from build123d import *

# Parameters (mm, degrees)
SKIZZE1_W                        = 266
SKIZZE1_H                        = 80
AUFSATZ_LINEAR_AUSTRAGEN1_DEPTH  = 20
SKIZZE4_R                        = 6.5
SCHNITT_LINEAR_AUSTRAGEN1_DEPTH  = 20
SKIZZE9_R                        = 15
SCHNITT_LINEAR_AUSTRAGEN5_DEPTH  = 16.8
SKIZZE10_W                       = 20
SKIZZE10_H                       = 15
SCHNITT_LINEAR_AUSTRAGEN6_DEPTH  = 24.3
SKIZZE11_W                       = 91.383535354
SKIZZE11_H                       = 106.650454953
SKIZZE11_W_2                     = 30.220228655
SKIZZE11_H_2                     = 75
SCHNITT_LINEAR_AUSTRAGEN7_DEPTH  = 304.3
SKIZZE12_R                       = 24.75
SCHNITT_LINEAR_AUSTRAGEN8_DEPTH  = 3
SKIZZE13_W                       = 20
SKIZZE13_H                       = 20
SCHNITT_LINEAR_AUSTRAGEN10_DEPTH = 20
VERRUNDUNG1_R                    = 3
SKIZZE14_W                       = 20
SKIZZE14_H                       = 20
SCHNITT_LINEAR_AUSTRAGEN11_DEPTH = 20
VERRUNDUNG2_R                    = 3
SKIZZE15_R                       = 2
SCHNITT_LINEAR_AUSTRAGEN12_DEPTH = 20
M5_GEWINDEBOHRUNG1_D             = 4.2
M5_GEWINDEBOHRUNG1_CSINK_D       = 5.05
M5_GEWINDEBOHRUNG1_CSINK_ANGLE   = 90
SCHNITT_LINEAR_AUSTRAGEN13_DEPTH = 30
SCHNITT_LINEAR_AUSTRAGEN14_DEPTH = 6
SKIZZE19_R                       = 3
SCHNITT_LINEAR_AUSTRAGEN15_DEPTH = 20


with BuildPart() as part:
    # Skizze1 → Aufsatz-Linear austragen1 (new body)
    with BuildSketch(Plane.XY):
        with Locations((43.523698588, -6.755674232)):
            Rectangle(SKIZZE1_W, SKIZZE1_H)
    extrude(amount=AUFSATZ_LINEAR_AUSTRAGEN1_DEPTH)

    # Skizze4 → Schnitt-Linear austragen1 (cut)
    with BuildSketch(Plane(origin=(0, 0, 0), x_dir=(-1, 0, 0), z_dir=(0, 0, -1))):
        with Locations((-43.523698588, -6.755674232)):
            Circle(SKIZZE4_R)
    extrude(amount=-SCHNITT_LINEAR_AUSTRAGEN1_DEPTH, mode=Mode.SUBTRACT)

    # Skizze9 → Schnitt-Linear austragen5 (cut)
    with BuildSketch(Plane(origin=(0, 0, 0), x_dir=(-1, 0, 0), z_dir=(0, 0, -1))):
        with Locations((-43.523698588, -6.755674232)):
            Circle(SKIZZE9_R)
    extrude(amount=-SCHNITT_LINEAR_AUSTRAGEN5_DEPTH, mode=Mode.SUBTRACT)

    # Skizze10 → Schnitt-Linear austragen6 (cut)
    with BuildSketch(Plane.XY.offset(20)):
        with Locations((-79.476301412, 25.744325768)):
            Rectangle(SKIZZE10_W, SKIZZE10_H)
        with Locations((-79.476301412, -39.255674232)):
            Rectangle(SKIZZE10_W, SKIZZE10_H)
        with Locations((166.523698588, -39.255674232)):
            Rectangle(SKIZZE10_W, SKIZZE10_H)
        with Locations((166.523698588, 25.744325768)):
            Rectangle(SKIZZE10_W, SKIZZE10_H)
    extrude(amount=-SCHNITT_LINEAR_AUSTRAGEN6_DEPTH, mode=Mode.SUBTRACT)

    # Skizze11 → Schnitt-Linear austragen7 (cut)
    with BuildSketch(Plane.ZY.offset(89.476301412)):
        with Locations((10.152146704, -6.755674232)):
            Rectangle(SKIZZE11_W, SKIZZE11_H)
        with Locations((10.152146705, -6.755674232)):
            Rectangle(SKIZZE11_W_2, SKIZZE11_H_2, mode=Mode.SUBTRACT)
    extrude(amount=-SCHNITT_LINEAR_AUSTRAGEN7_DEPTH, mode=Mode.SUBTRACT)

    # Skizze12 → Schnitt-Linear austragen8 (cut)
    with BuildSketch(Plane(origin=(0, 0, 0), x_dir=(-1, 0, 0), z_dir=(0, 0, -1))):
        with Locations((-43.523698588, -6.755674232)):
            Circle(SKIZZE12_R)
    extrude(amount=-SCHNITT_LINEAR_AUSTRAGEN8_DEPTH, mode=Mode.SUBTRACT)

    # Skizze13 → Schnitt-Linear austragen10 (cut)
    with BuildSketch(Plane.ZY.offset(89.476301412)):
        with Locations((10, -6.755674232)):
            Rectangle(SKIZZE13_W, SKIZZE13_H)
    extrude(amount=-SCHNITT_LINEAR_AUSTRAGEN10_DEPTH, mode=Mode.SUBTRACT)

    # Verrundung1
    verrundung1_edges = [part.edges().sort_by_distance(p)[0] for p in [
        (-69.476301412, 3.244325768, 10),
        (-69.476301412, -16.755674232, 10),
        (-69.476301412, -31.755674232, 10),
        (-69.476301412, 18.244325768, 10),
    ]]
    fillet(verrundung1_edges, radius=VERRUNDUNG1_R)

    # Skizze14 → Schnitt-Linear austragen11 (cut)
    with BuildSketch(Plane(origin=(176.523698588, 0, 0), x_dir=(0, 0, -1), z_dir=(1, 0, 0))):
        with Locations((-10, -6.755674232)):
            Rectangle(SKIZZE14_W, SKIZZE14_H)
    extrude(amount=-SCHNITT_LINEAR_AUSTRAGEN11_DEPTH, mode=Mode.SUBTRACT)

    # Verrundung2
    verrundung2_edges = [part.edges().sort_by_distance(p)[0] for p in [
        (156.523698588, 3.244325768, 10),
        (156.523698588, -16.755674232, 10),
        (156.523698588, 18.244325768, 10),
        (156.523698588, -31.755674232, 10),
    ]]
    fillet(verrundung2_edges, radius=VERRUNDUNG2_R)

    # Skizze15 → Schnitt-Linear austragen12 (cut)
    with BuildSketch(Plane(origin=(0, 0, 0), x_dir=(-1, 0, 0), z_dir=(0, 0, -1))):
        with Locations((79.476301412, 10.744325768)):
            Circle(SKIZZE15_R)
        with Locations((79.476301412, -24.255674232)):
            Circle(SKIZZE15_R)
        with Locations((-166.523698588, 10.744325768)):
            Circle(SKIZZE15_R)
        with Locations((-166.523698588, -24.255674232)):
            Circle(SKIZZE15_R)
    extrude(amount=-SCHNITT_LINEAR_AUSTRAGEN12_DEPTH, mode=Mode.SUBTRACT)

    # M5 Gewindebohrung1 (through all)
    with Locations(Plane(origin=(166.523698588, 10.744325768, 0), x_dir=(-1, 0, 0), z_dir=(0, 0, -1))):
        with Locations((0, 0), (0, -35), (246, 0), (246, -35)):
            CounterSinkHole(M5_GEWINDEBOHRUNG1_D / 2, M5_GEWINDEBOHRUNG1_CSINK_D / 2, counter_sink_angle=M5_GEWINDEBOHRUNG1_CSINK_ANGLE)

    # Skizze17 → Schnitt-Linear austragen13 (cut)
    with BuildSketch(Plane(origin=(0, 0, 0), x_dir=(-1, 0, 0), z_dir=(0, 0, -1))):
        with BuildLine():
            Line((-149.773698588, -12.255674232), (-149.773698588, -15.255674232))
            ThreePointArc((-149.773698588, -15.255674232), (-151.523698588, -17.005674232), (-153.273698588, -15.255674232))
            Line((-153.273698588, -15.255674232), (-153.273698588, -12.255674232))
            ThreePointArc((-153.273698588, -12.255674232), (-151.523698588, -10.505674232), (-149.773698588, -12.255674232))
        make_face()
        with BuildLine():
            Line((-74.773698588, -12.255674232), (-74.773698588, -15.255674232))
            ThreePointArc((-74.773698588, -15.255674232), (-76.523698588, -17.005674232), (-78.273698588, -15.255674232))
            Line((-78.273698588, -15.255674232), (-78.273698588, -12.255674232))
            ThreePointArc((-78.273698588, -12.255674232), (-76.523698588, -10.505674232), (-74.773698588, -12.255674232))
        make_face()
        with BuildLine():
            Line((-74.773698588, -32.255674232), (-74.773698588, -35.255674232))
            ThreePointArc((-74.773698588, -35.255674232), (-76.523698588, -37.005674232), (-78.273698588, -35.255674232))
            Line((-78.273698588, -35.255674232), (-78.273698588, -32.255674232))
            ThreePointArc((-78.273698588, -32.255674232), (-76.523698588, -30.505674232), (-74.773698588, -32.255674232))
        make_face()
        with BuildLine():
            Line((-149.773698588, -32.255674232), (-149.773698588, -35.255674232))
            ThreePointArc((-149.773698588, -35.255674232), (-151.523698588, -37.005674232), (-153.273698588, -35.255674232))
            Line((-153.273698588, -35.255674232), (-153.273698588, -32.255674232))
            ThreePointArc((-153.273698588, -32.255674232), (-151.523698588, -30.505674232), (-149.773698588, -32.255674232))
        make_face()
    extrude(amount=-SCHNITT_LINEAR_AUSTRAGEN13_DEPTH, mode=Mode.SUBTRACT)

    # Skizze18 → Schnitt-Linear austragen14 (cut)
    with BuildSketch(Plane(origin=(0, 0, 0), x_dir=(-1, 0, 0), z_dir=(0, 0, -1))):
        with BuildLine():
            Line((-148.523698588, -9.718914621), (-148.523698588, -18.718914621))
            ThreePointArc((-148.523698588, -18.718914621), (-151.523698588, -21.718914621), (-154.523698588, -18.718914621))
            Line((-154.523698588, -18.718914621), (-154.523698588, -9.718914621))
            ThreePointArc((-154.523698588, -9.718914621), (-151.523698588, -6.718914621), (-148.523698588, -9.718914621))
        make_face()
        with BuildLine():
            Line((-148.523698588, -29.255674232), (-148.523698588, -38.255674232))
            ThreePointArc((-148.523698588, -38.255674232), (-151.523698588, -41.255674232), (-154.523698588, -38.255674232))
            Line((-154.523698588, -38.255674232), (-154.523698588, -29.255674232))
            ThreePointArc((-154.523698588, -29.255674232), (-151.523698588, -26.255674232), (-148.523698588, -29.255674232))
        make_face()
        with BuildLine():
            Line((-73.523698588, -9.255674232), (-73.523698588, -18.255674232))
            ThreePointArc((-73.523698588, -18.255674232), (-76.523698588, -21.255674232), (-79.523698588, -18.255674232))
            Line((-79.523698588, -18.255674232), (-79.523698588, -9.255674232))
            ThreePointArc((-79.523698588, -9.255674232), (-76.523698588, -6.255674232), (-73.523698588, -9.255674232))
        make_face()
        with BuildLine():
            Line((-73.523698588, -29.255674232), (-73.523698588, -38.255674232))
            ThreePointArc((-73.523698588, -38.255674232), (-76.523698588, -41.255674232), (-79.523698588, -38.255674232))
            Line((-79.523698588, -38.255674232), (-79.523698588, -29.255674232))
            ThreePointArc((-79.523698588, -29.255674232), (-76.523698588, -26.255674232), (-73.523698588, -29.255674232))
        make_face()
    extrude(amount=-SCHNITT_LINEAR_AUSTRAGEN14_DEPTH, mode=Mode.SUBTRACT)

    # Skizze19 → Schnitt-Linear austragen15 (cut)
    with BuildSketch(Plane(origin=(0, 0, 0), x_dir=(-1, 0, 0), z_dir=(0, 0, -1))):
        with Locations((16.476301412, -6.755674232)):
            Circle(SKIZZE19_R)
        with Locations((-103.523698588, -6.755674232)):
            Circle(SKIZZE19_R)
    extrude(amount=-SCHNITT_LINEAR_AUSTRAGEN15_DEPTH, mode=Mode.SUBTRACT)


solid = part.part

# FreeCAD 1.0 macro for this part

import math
import FreeCAD as App
import Part
import Sketcher
from FreeCAD import Vector


def edges_at(feature, points):
    """Names of the edges that pass closest to the given points."""
    edges = feature.Shape.Edges
    near = lambda p: min(range(len(edges)), key=lambda i: edges[i].distToShape(Part.Vertex(*p))[0])
    return sorted({f"Edge{near(p) + 1}" for p in points})

doc = App.newDocument("Part")
body = doc.addObject("PartDesign::Body", "Body")

# Sketch on XY plane
sketch1 = doc.addObject("Sketcher::SketchObject", "Sketch")
body.addObject(sketch1)
sketch1.AttachmentSupport = (doc.XY_Plane, [""])
sketch1.MapMode = "FlatFace"
sketch1.addGeometry([
    Part.LineSegment(Vector(-89.476301, 33.244326, 0), Vector(-89.476301, -46.755674, 0)),
    Part.LineSegment(Vector(-89.476301, -46.755674, 0), Vector(176.523699, -46.755674, 0)),
    Part.LineSegment(Vector(176.523699, -46.755674, 0), Vector(176.523699, 33.244326, 0)),
    Part.LineSegment(Vector(176.523699, 33.244326, 0), Vector(-89.476301, 33.244326, 0)),
], False)
sketch1.addConstraint([
    Sketcher.Constraint("Coincident", 0, 2, 1, 1),
    Sketcher.Constraint("Coincident", 1, 2, 2, 1),
    Sketcher.Constraint("Coincident", 2, 2, 3, 1),
    Sketcher.Constraint("Coincident", 3, 2, 0, 1),
    Sketcher.Constraint("Vertical", 0),
    Sketcher.Constraint("Horizontal", 1),
    Sketcher.Constraint("Vertical", 2),
    Sketcher.Constraint("Horizontal", 3),
    Sketcher.Constraint("DistanceX", 1, 1, 1, 2, 266.0),
    Sketcher.Constraint("DistanceY", 0, 2, 0, 1, 80.0),
    Sketcher.Constraint("DistanceX", 0, 2, -1, 1, 89.476301),
    Sketcher.Constraint("DistanceY", 0, 2, -1, 1, 46.755674),
])
pad1 = doc.addObject("PartDesign::Pad", "Pad")
body.addObject(pad1)
pad1.Profile = sketch1
pad1.Length = 20

# Sketch on XY plane
sketch2 = doc.addObject("Sketcher::SketchObject", "Sketch001")
body.addObject(sketch2)
sketch2.AttachmentSupport = (doc.XY_Plane, [""])
sketch2.MapMode = "FlatFace"
sketch2.addGeometry(Part.Circle(Vector(43.523699, -6.755674, 0), Vector(0, 0, 1), 6.5), False)
sketch2.addConstraint([
    Sketcher.Constraint("Diameter", 0, 13.0),
    Sketcher.Constraint("DistanceX", -1, 1, 0, 3, 43.523699),
    Sketcher.Constraint("DistanceY", 0, 3, -1, 1, 6.755674),
])
pocket1 = doc.addObject("PartDesign::Pocket", "Pocket")
body.addObject(pocket1)
pocket1.Profile = sketch2
pocket1.Length = 20
pocket1.Reversed = True

# Sketch on XY plane
sketch3 = doc.addObject("Sketcher::SketchObject", "Sketch002")
body.addObject(sketch3)
sketch3.AttachmentSupport = (doc.XY_Plane, [""])
sketch3.MapMode = "FlatFace"
sketch3.addGeometry(Part.Circle(Vector(43.523699, -6.755674, 0), Vector(0, 0, 1), 15), False)
sketch3.addConstraint([
    Sketcher.Constraint("Diameter", 0, 30.0),
    Sketcher.Constraint("DistanceX", -1, 1, 0, 3, 43.523699),
    Sketcher.Constraint("DistanceY", 0, 3, -1, 1, 6.755674),
])
pocket2 = doc.addObject("PartDesign::Pocket", "Pocket001")
body.addObject(pocket2)
pocket2.Profile = sketch3
pocket2.Length = 16.8
pocket2.Reversed = True

# Sketch on XY plane
sketch4 = doc.addObject("Sketcher::SketchObject", "Sketch003")
body.addObject(sketch4)
sketch4.AttachmentSupport = (doc.XY_Plane, [""])
sketch4.MapMode = "FlatFace"
sketch4.AttachmentOffset = App.Placement(Vector(0, 0, 20), App.Rotation())
sketch4.addGeometry([
    Part.LineSegment(Vector(-89.476301, 33.244326, 0), Vector(-89.476301, 18.244326, 0)),  # 0
    Part.LineSegment(Vector(-89.476301, 18.244326, 0), Vector(-69.476301, 18.244326, 0)),  # 1
    Part.LineSegment(Vector(-69.476301, 18.244326, 0), Vector(-69.476301, 33.244326, 0)),  # 2
    Part.LineSegment(Vector(-69.476301, 33.244326, 0), Vector(-89.476301, 33.244326, 0)),  # 3
    Part.LineSegment(Vector(-89.476301, -31.755674, 0), Vector(-89.476301, -46.755674, 0)),  # 4
    Part.LineSegment(Vector(-89.476301, -46.755674, 0), Vector(-69.476301, -46.755674, 0)),  # 5
    Part.LineSegment(Vector(-69.476301, -46.755674, 0), Vector(-69.476301, -31.755674, 0)),  # 6
    Part.LineSegment(Vector(-69.476301, -31.755674, 0), Vector(-89.476301, -31.755674, 0)),  # 7
    Part.LineSegment(Vector(156.523699, -31.755674, 0), Vector(156.523699, -46.755674, 0)),  # 8
    Part.LineSegment(Vector(156.523699, -46.755674, 0), Vector(176.523699, -46.755674, 0)),  # 9
    Part.LineSegment(Vector(176.523699, -46.755674, 0), Vector(176.523699, -31.755674, 0)),  # 10
    Part.LineSegment(Vector(176.523699, -31.755674, 0), Vector(156.523699, -31.755674, 0)),  # 11
    Part.LineSegment(Vector(156.523699, 33.244326, 0), Vector(156.523699, 18.244326, 0)),  # 12
    Part.LineSegment(Vector(156.523699, 18.244326, 0), Vector(176.523699, 18.244326, 0)),  # 13
    Part.LineSegment(Vector(176.523699, 18.244326, 0), Vector(176.523699, 33.244326, 0)),  # 14
    Part.LineSegment(Vector(176.523699, 33.244326, 0), Vector(156.523699, 33.244326, 0)),  # 15
], False)
sketch4.addConstraint([
    Sketcher.Constraint("Coincident", 0, 2, 1, 1),
    Sketcher.Constraint("Coincident", 1, 2, 2, 1),
    Sketcher.Constraint("Coincident", 2, 2, 3, 1),
    Sketcher.Constraint("Coincident", 3, 2, 0, 1),
    Sketcher.Constraint("Coincident", 4, 2, 5, 1),
    Sketcher.Constraint("Coincident", 5, 2, 6, 1),
    Sketcher.Constraint("Coincident", 6, 2, 7, 1),
    Sketcher.Constraint("Coincident", 7, 2, 4, 1),
    Sketcher.Constraint("Coincident", 8, 2, 9, 1),
    Sketcher.Constraint("Coincident", 9, 2, 10, 1),
    Sketcher.Constraint("Coincident", 10, 2, 11, 1),
    Sketcher.Constraint("Coincident", 11, 2, 8, 1),
    Sketcher.Constraint("Coincident", 12, 2, 13, 1),
    Sketcher.Constraint("Coincident", 13, 2, 14, 1),
    Sketcher.Constraint("Coincident", 14, 2, 15, 1),
    Sketcher.Constraint("Coincident", 15, 2, 12, 1),
    Sketcher.Constraint("Vertical", 0),
    Sketcher.Constraint("Horizontal", 1),
    Sketcher.Constraint("Vertical", 2),
    Sketcher.Constraint("Horizontal", 3),
    Sketcher.Constraint("Vertical", 4),
    Sketcher.Constraint("Horizontal", 5),
    Sketcher.Constraint("Vertical", 6),
    Sketcher.Constraint("Horizontal", 7),
    Sketcher.Constraint("Vertical", 8),
    Sketcher.Constraint("Horizontal", 9),
    Sketcher.Constraint("Vertical", 10),
    Sketcher.Constraint("Horizontal", 11),
    Sketcher.Constraint("Vertical", 12),
    Sketcher.Constraint("Horizontal", 13),
    Sketcher.Constraint("Vertical", 14),
    Sketcher.Constraint("Horizontal", 15),
    Sketcher.Constraint("Horizontal", 5, 2, 8, 2),
    Sketcher.Constraint("Horizontal", 7, 2, 10, 2),
    Sketcher.Constraint("Horizontal", 1, 2, 12, 2),
    Sketcher.Constraint("Horizontal", 3, 2, 14, 2),
    Sketcher.Constraint("Vertical", 3, 2, 4, 2),
    Sketcher.Constraint("Vertical", 2, 2, 5, 2),
    Sketcher.Constraint("Vertical", 11, 2, 12, 2),
    Sketcher.Constraint("Vertical", 10, 2, 13, 2),
    Sketcher.Constraint("Equal", 7, 9),
    Sketcher.Constraint("Equal", 2, 4),
    Sketcher.Constraint("DistanceX", 1, 1, 1, 2, 20.0),
    Sketcher.Constraint("DistanceY", 0, 2, 0, 1, 15.0),
    Sketcher.Constraint("DistanceY", 4, 2, 0, 2, 65.0),
    Sketcher.Constraint("DistanceX", 5, 2, 8, 2, 226.0),
    Sketcher.Constraint("DistanceX", 0, 2, -1, 1, 89.476301),
    Sketcher.Constraint("DistanceY", -1, 1, 0, 2, 18.244326),
])
pocket3 = doc.addObject("PartDesign::Pocket", "Pocket002")
body.addObject(pocket3)
pocket3.Profile = sketch4
pocket3.Length = 24.3

# Sketch on YZ plane
sketch5 = doc.addObject("Sketcher::SketchObject", "Sketch004")
body.addObject(sketch5)
sketch5.AttachmentSupport = (doc.YZ_Plane, [""])
sketch5.MapMode = "FlatFace"
sketch5.AttachmentOffset = App.Placement(Vector(0, 0, -89.476301), App.Rotation())
sketch5.addGeometry([
    Part.LineSegment(Vector(46.569553, -35.539621, 0), Vector(-60.080902, -35.539621, 0)),  # 0
    Part.LineSegment(Vector(-60.080902, -35.539621, 0), Vector(-60.080902, 55.843914, 0)),  # 1
    Part.LineSegment(Vector(-60.080902, 55.843914, 0), Vector(46.569553, 55.843914, 0)),  # 2
    Part.LineSegment(Vector(46.569553, 55.843914, 0), Vector(46.569553, -35.539621, 0)),  # 3
    Part.LineSegment(Vector(-44.255674, 25.262261, 0), Vector(-44.255674, -4.957968, 0)),  # 4
    Part.LineSegment(Vector(-44.255674, -4.957968, 0), Vector(30.744326, -4.957968, 0)),  # 5
    Part.LineSegment(Vector(30.744326, -4.957968, 0), Vector(30.744326, 25.262261, 0)),  # 6
    Part.LineSegment(Vector(30.744326, 25.262261, 0), Vector(-44.255674, 25.262261, 0)),  # 7
], False)
sketch5.addConstraint([
    Sketcher.Constraint("Coincident", 0, 2, 1, 1),
    Sketcher.Constraint("Coincident", 1, 2, 2, 1),
    Sketcher.Constraint("Coincident", 2, 2, 3, 1),
    Sketcher.Constraint("Coincident", 3, 2, 0, 1),
    Sketcher.Constraint("Coincident", 4, 2, 5, 1),
    Sketcher.Constraint("Coincident", 5, 2, 6, 1),
    Sketcher.Constraint("Coincident", 6, 2, 7, 1),
    Sketcher.Constraint("Coincident", 7, 2, 4, 1),
    Sketcher.Constraint("Horizontal", 0),
    Sketcher.Constraint("Vertical", 1),
    Sketcher.Constraint("Horizontal", 2),
    Sketcher.Constraint("Vertical", 3),
    Sketcher.Constraint("Vertical", 4),
    Sketcher.Constraint("Horizontal", 5),
    Sketcher.Constraint("Vertical", 6),
    Sketcher.Constraint("Horizontal", 7),
    Sketcher.Constraint("DistanceX", 5, 1, 5, 2, 75.0),
    Sketcher.Constraint("DistanceY", 4, 2, 4, 1, 30.220229),
    Sketcher.Constraint("DistanceX", 0, 2, -1, 1, 60.080902),
    Sketcher.Constraint("DistanceX", 0, 2, 0, 1, 106.650455),
    Sketcher.Constraint("DistanceY", 1, 1, 1, 2, 91.383535),
    Sketcher.Constraint("DistanceY", 0, 2, -1, 1, 35.539621),
    Sketcher.Constraint("DistanceY", -1, 1, 6, 2, 25.262261),
    Sketcher.Constraint("DistanceX", 4, 2, -1, 1, 44.255674),
])
pocket4 = doc.addObject("PartDesign::Pocket", "Pocket003")
body.addObject(pocket4)
pocket4.Profile = sketch5
pocket4.Length = 304.3
pocket4.Reversed = True

# Sketch on XY plane
sketch6 = doc.addObject("Sketcher::SketchObject", "Sketch005")
body.addObject(sketch6)
sketch6.AttachmentSupport = (doc.XY_Plane, [""])
sketch6.MapMode = "FlatFace"
sketch6.addGeometry(Part.Circle(Vector(43.523699, -6.755674, 0), Vector(0, 0, 1), 24.75), False)
sketch6.addConstraint([
    Sketcher.Constraint("Diameter", 0, 49.5),
    Sketcher.Constraint("DistanceX", -1, 1, 0, 3, 43.523699),
    Sketcher.Constraint("DistanceY", 0, 3, -1, 1, 6.755674),
])
pocket5 = doc.addObject("PartDesign::Pocket", "Pocket004")
body.addObject(pocket5)
pocket5.Profile = sketch6
pocket5.Length = 3
pocket5.Reversed = True

# Sketch on YZ plane
sketch7 = doc.addObject("Sketcher::SketchObject", "Sketch006")
body.addObject(sketch7)
sketch7.AttachmentSupport = (doc.YZ_Plane, [""])
sketch7.MapMode = "FlatFace"
sketch7.AttachmentOffset = App.Placement(Vector(0, 0, -89.476301), App.Rotation())
sketch7.addGeometry([
    Part.LineSegment(Vector(3.244326, 0, 0), Vector(-16.755674, 0, 0)),
    Part.LineSegment(Vector(-16.755674, 0, 0), Vector(-16.755674, 20, 0)),
    Part.LineSegment(Vector(-16.755674, 20, 0), Vector(3.244326, 20, 0)),
    Part.LineSegment(Vector(3.244326, 20, 0), Vector(3.244326, 0, 0)),
], False)
sketch7.addConstraint([
    Sketcher.Constraint("Coincident", 0, 2, 1, 1),
    Sketcher.Constraint("Coincident", 1, 2, 2, 1),
    Sketcher.Constraint("Coincident", 2, 2, 3, 1),
    Sketcher.Constraint("Coincident", 3, 2, 0, 1),
    Sketcher.Constraint("Horizontal", 0),
    Sketcher.Constraint("Vertical", 1),
    Sketcher.Constraint("Horizontal", 2),
    Sketcher.Constraint("Vertical", 3),
    Sketcher.Constraint("PointOnObject", 0, 2, -1),
    Sketcher.Constraint("Equal", 2, 1),
    Sketcher.Constraint("DistanceX", 0, 2, 0, 1, 20.0),
    Sketcher.Constraint("DistanceX", 0, 2, -1, 1, 16.755674),
])
pocket6 = doc.addObject("PartDesign::Pocket", "Pocket005")
body.addObject(pocket6)
pocket6.Profile = sketch7
pocket6.Length = 20
pocket6.Reversed = True
doc.recompute()

fillet = doc.addObject("PartDesign::Fillet", "Fillet")
body.addObject(fillet)
fillet.Base = (pocket6, edges_at(pocket6, [
    (-69.476, 3.244, 10),
    (-69.476, -16.756, 10),
    (-69.476, -31.756, 10),
    (-69.476, 18.244, 10),
]))
fillet.Radius = 3

# Sketch on YZ plane
sketch8 = doc.addObject("Sketcher::SketchObject", "Sketch007")
body.addObject(sketch8)
sketch8.AttachmentSupport = (doc.YZ_Plane, [""])
sketch8.MapMode = "FlatFace"
sketch8.AttachmentOffset = App.Placement(Vector(0, 0, 176.523699), App.Rotation())
sketch8.addGeometry([
    Part.LineSegment(Vector(3.244326, 20, 0), Vector(-16.755674, 20, 0)),
    Part.LineSegment(Vector(-16.755674, 20, 0), Vector(-16.755674, 0, 0)),
    Part.LineSegment(Vector(-16.755674, 0, 0), Vector(3.244326, 0, 0)),
    Part.LineSegment(Vector(3.244326, 0, 0), Vector(3.244326, 20, 0)),
], False)
sketch8.addConstraint([
    Sketcher.Constraint("Coincident", 0, 2, 1, 1),
    Sketcher.Constraint("Coincident", 1, 2, 2, 1),
    Sketcher.Constraint("Coincident", 2, 2, 3, 1),
    Sketcher.Constraint("Coincident", 3, 2, 0, 1),
    Sketcher.Constraint("Horizontal", 0),
    Sketcher.Constraint("Vertical", 1),
    Sketcher.Constraint("Horizontal", 2),
    Sketcher.Constraint("Vertical", 3),
    Sketcher.Constraint("PointOnObject", 1, 2, -1),
    Sketcher.Constraint("Equal", 2, 1),
    Sketcher.Constraint("DistanceX", 0, 2, 0, 1, 20.0),
    Sketcher.Constraint("DistanceX", 0, 2, -1, 1, 16.755674),
])
pocket7 = doc.addObject("PartDesign::Pocket", "Pocket006")
body.addObject(pocket7)
pocket7.Profile = sketch8
pocket7.Length = 20
doc.recompute()

fillet2 = doc.addObject("PartDesign::Fillet", "Fillet001")
body.addObject(fillet2)
fillet2.Base = (pocket7, edges_at(pocket7, [
    (156.524, 3.244, 10),
    (156.524, -16.756, 10),
    (156.524, 18.244, 10),
    (156.524, -31.756, 10),
]))
fillet2.Radius = 3

# Sketch on XY plane
sketch9 = doc.addObject("Sketcher::SketchObject", "Sketch008")
body.addObject(sketch9)
sketch9.AttachmentSupport = (doc.XY_Plane, [""])
sketch9.MapMode = "FlatFace"
sketch9.addGeometry([
    Part.Circle(Vector(-79.476301, 10.744326, 0), Vector(0, 0, 1), 2),
    Part.Circle(Vector(-79.476301, -24.255674, 0), Vector(0, 0, 1), 2),
    Part.Circle(Vector(166.523699, 10.744326, 0), Vector(0, 0, 1), 2),
    Part.Circle(Vector(166.523699, -24.255674, 0), Vector(0, 0, 1), 2),
], False)
sketch9.addConstraint([
    Sketcher.Constraint("Equal", 0, 1),
    Sketcher.Constraint("Equal", 1, 2),
    Sketcher.Constraint("Equal", 2, 3),
    Sketcher.Constraint("Horizontal", 0, 3, 2, 3),
    Sketcher.Constraint("Horizontal", 1, 3, 3, 3),
    Sketcher.Constraint("Vertical", 0, 3, 1, 3),
    Sketcher.Constraint("Vertical", 2, 3, 3, 3),
    Sketcher.Constraint("Diameter", 0, 4.0),
    Sketcher.Constraint("DistanceY", 1, 3, 0, 3, 35.0),
    Sketcher.Constraint("DistanceX", 0, 3, 2, 3, 246.0),
    Sketcher.Constraint("DistanceX", 0, 3, -1, 1, 79.476301),
    Sketcher.Constraint("DistanceY", -1, 1, 0, 3, 10.744326),
])
pocket8 = doc.addObject("PartDesign::Pocket", "Pocket007")
body.addObject(pocket8)
pocket8.Profile = sketch9
pocket8.Length = 20
pocket8.Reversed = True

# Sketch on XY plane
sketch10 = doc.addObject("Sketcher::SketchObject", "Sketch009")
body.addObject(sketch10)
sketch10.AttachmentSupport = (doc.XY_Plane, [""])
sketch10.MapMode = "FlatFace"
sketch10.addGeometry([
    Part.Circle(Vector(166.523699, 10.744326, 0), Vector(0, 0, 1), 2.1),
    Part.Circle(Vector(166.523699, -24.255674, 0), Vector(0, 0, 1), 2.1),
    Part.Circle(Vector(-79.476301, 10.744326, 0), Vector(0, 0, 1), 2.1),
    Part.Circle(Vector(-79.476301, -24.255674, 0), Vector(0, 0, 1), 2.1),
], False)
sketch10.addConstraint([
    Sketcher.Constraint("Equal", 0, 1),
    Sketcher.Constraint("Equal", 1, 2),
    Sketcher.Constraint("Equal", 2, 3),
    Sketcher.Constraint("Horizontal", 0, 3, 2, 3),
    Sketcher.Constraint("Horizontal", 1, 3, 3, 3),
    Sketcher.Constraint("Vertical", 0, 3, 1, 3),
    Sketcher.Constraint("Vertical", 2, 3, 3, 3),
    Sketcher.Constraint("Diameter", 0, 4.2),
    Sketcher.Constraint("DistanceY", 1, 3, 0, 3, 35.0),
    Sketcher.Constraint("DistanceX", 2, 3, 0, 3, 246.0),
    Sketcher.Constraint("DistanceX", -1, 1, 0, 3, 166.523699),
    Sketcher.Constraint("DistanceY", -1, 1, 0, 3, 10.744326),
])
doc.recompute()
hole = doc.addObject("PartDesign::Hole", "Hole")
body.addObject(hole)
hole.Profile = sketch10
hole.ThreadType = "None"
hole.Diameter = 4.2
hole.DepthType = "ThroughAll"
hole.HoleCutType = "Countersink"
hole.HoleCutDiameter = 5.05
hole.HoleCutCountersinkAngle = 90
hole.Reversed = True

# Sketch on XY plane
sketch11 = doc.addObject("Sketcher::SketchObject", "Sketch010")
body.addObject(sketch11)
sketch11.AttachmentSupport = (doc.XY_Plane, [""])
sketch11.MapMode = "FlatFace"
sketch11.addGeometry([
    Part.LineSegment(Vector(149.773699, -15.255674, 0), Vector(149.773699, -12.255674, 0)),  # 0
    Part.ArcOfCircle(Part.Circle(Vector(151.523699, -12.255674, 0), Vector(0, 0, 1), 1.75), math.radians(0), math.radians(180)),  # 1
    Part.LineSegment(Vector(153.273699, -12.255674, 0), Vector(153.273699, -15.255674, 0)),  # 2
    Part.ArcOfCircle(Part.Circle(Vector(151.523699, -15.255674, 0), Vector(0, 0, 1), 1.75), math.radians(180), math.radians(360)),  # 3
    Part.LineSegment(Vector(74.773699, -15.255674, 0), Vector(74.773699, -12.255674, 0)),  # 4
    Part.ArcOfCircle(Part.Circle(Vector(76.523699, -12.255674, 0), Vector(0, 0, 1), 1.75), math.radians(0), math.radians(180)),  # 5
    Part.LineSegment(Vector(78.273699, -12.255674, 0), Vector(78.273699, -15.255674, 0)),  # 6
    Part.ArcOfCircle(Part.Circle(Vector(76.523699, -15.255674, 0), Vector(0, 0, 1), 1.75), math.radians(180), math.radians(360)),  # 7
    Part.LineSegment(Vector(74.773699, -35.255674, 0), Vector(74.773699, -32.255674, 0)),  # 8
    Part.ArcOfCircle(Part.Circle(Vector(76.523699, -32.255674, 0), Vector(0, 0, 1), 1.75), math.radians(0), math.radians(180)),  # 9
    Part.LineSegment(Vector(78.273699, -32.255674, 0), Vector(78.273699, -35.255674, 0)),  # 10
    Part.ArcOfCircle(Part.Circle(Vector(76.523699, -35.255674, 0), Vector(0, 0, 1), 1.75), math.radians(180), math.radians(360)),  # 11
    Part.LineSegment(Vector(149.773699, -35.255674, 0), Vector(149.773699, -32.255674, 0)),  # 12
    Part.ArcOfCircle(Part.Circle(Vector(151.523699, -32.255674, 0), Vector(0, 0, 1), 1.75), math.radians(0), math.radians(180)),  # 13
    Part.LineSegment(Vector(153.273699, -32.255674, 0), Vector(153.273699, -35.255674, 0)),  # 14
    Part.ArcOfCircle(Part.Circle(Vector(151.523699, -35.255674, 0), Vector(0, 0, 1), 1.75), math.radians(180), math.radians(360)),  # 15
], False)
sketch11.addConstraint([
    Sketcher.Constraint("Tangent", 0, 2, 1, 2),
    Sketcher.Constraint("Tangent", 1, 1, 2, 1),
    Sketcher.Constraint("Tangent", 2, 2, 3, 2),
    Sketcher.Constraint("Tangent", 3, 1, 0, 1),
    Sketcher.Constraint("Tangent", 4, 2, 5, 2),
    Sketcher.Constraint("Tangent", 5, 1, 6, 1),
    Sketcher.Constraint("Tangent", 6, 2, 7, 2),
    Sketcher.Constraint("Tangent", 7, 1, 4, 1),
    Sketcher.Constraint("Tangent", 8, 2, 9, 2),
    Sketcher.Constraint("Tangent", 9, 1, 10, 1),
    Sketcher.Constraint("Tangent", 10, 2, 11, 2),
    Sketcher.Constraint("Tangent", 11, 1, 8, 1),
    Sketcher.Constraint("Tangent", 12, 2, 13, 2),
    Sketcher.Constraint("Tangent", 13, 1, 14, 1),
    Sketcher.Constraint("Tangent", 14, 2, 15, 2),
    Sketcher.Constraint("Tangent", 15, 1, 12, 1),
    Sketcher.Constraint("Vertical", 0),
    Sketcher.Constraint("Vertical", 2),
    Sketcher.Constraint("Vertical", 4),
    Sketcher.Constraint("Vertical", 6),
    Sketcher.Constraint("Vertical", 8),
    Sketcher.Constraint("Vertical", 10),
    Sketcher.Constraint("Vertical", 12),
    Sketcher.Constraint("Vertical", 14),
    Sketcher.Constraint("Equal", 3, 5),
    Sketcher.Constraint("Equal", 7, 9),
    Sketcher.Constraint("Equal", 11, 13),
    Sketcher.Constraint("Horizontal", 1, 3, 5, 3),
    Sketcher.Constraint("Horizontal", 3, 3, 7, 3),
    Sketcher.Constraint("Horizontal", 9, 3, 13, 3),
    Sketcher.Constraint("Horizontal", 11, 3, 15, 3),
    Sketcher.Constraint("Vertical", 7, 3, 9, 3),
    Sketcher.Constraint("Vertical", 3, 3, 13, 3),
    Sketcher.Constraint("Equal", 6, 8),
    Sketcher.Constraint("DistanceY", 0, 1, 0, 2, 3.0),
    Sketcher.Constraint("Radius", 1, 1.75),
    Sketcher.Constraint("DistanceX", 5, 3, 1, 3, 75.0),
    Sketcher.Constraint("DistanceY", 9, 3, 7, 3, 17.0),
    Sketcher.Constraint("DistanceX", -1, 1, 1, 3, 151.523699),
    Sketcher.Constraint("DistanceY", 1, 3, -1, 1, 12.255674),
])
pocket9 = doc.addObject("PartDesign::Pocket", "Pocket008")
body.addObject(pocket9)
pocket9.Profile = sketch11
pocket9.Length = 30
pocket9.Reversed = True

# Sketch on XY plane
sketch12 = doc.addObject("Sketcher::SketchObject", "Sketch011")
body.addObject(sketch12)
sketch12.AttachmentSupport = (doc.XY_Plane, [""])
sketch12.MapMode = "FlatFace"
sketch12.addGeometry([
    Part.LineSegment(Vector(148.523699, -18.718915, 0), Vector(148.523699, -9.718915, 0)),  # 0
    Part.ArcOfCircle(Part.Circle(Vector(151.523699, -9.718915, 0), Vector(0, 0, 1), 3), math.radians(0), math.radians(180)),  # 1
    Part.LineSegment(Vector(154.523699, -9.718915, 0), Vector(154.523699, -18.718915, 0)),  # 2
    Part.ArcOfCircle(Part.Circle(Vector(151.523699, -18.718915, 0), Vector(0, 0, 1), 3), math.radians(180), math.radians(360)),  # 3
    Part.LineSegment(Vector(148.523699, -38.255674, 0), Vector(148.523699, -29.255674, 0)),  # 4
    Part.ArcOfCircle(Part.Circle(Vector(151.523699, -29.255674, 0), Vector(0, 0, 1), 3), math.radians(0), math.radians(180)),  # 5
    Part.LineSegment(Vector(154.523699, -29.255674, 0), Vector(154.523699, -38.255674, 0)),  # 6
    Part.ArcOfCircle(Part.Circle(Vector(151.523699, -38.255674, 0), Vector(0, 0, 1), 3), math.radians(180), math.radians(360)),  # 7
    Part.LineSegment(Vector(73.523699, -18.255674, 0), Vector(73.523699, -9.255674, 0)),  # 8
    Part.ArcOfCircle(Part.Circle(Vector(76.523699, -9.255674, 0), Vector(0, 0, 1), 3), math.radians(0), math.radians(180)),  # 9
    Part.LineSegment(Vector(79.523699, -9.255674, 0), Vector(79.523699, -18.255674, 0)),  # 10
    Part.ArcOfCircle(Part.Circle(Vector(76.523699, -18.255674, 0), Vector(0, 0, 1), 3), math.radians(180), math.radians(360)),  # 11
    Part.LineSegment(Vector(73.523699, -38.255674, 0), Vector(73.523699, -29.255674, 0)),  # 12
    Part.ArcOfCircle(Part.Circle(Vector(76.523699, -29.255674, 0), Vector(0, 0, 1), 3), math.radians(0), math.radians(180)),  # 13
    Part.LineSegment(Vector(79.523699, -29.255674, 0), Vector(79.523699, -38.255674, 0)),  # 14
    Part.ArcOfCircle(Part.Circle(Vector(76.523699, -38.255674, 0), Vector(0, 0, 1), 3), math.radians(180), math.radians(360)),  # 15
], False)
sketch12.addConstraint([
    Sketcher.Constraint("Tangent", 0, 2, 1, 2),
    Sketcher.Constraint("Tangent", 1, 1, 2, 1),
    Sketcher.Constraint("Tangent", 2, 2, 3, 2),
    Sketcher.Constraint("Tangent", 3, 1, 0, 1),
    Sketcher.Constraint("Tangent", 4, 2, 5, 2),
    Sketcher.Constraint("Tangent", 5, 1, 6, 1),
    Sketcher.Constraint("Tangent", 6, 2, 7, 2),
    Sketcher.Constraint("Tangent", 7, 1, 4, 1),
    Sketcher.Constraint("Tangent", 8, 2, 9, 2),
    Sketcher.Constraint("Tangent", 9, 1, 10, 1),
    Sketcher.Constraint("Tangent", 10, 2, 11, 2),
    Sketcher.Constraint("Tangent", 11, 1, 8, 1),
    Sketcher.Constraint("Tangent", 12, 2, 13, 2),
    Sketcher.Constraint("Tangent", 13, 1, 14, 1),
    Sketcher.Constraint("Tangent", 14, 2, 15, 2),
    Sketcher.Constraint("Tangent", 15, 1, 12, 1),
    Sketcher.Constraint("Vertical", 0),
    Sketcher.Constraint("Vertical", 2),
    Sketcher.Constraint("Vertical", 4),
    Sketcher.Constraint("Vertical", 6),
    Sketcher.Constraint("Vertical", 8),
    Sketcher.Constraint("Vertical", 10),
    Sketcher.Constraint("Vertical", 12),
    Sketcher.Constraint("Vertical", 14),
    Sketcher.Constraint("Equal", 3, 5),
    Sketcher.Constraint("Equal", 7, 9),
    Sketcher.Constraint("Equal", 11, 13),
    Sketcher.Constraint("Horizontal", 5, 3, 13, 3),
    Sketcher.Constraint("Horizontal", 7, 3, 15, 3),
    Sketcher.Constraint("Vertical", 3, 3, 5, 3),
    Sketcher.Constraint("Vertical", 11, 3, 13, 3),
    Sketcher.Constraint("Equal", 2, 4),
    Sketcher.Constraint("Equal", 6, 8),
    Sketcher.Constraint("Radius", 1, 3.0),
    Sketcher.Constraint("DistanceY", 0, 1, 0, 2, 9.0),
    Sketcher.Constraint("DistanceX", 9, 3, 1, 3, 75.0),
    Sketcher.Constraint("DistanceY", 5, 3, 9, 3, 20.0),
    Sketcher.Constraint("DistanceX", -1, 1, 1, 3, 151.523699),
    Sketcher.Constraint("DistanceY", 5, 3, 3, 3, 10.53676),
    Sketcher.Constraint("DistanceY", 1, 3, -1, 1, 9.718915),
])
pocket10 = doc.addObject("PartDesign::Pocket", "Pocket009")
body.addObject(pocket10)
pocket10.Profile = sketch12
pocket10.Length = 6
pocket10.Reversed = True

# Sketch on XY plane
sketch13 = doc.addObject("Sketcher::SketchObject", "Sketch012")
body.addObject(sketch13)
sketch13.AttachmentSupport = (doc.XY_Plane, [""])
sketch13.MapMode = "FlatFace"
sketch13.addGeometry([
    Part.Circle(Vector(-16.476301, -6.755674, 0), Vector(0, 0, 1), 3),
    Part.Circle(Vector(103.523699, -6.755674, 0), Vector(0, 0, 1), 3),
], False)
sketch13.addConstraint([
    Sketcher.Constraint("Equal", 0, 1),
    Sketcher.Constraint("Horizontal", 0, 3, 1, 3),
    Sketcher.Constraint("Diameter", 0, 6.0),
    Sketcher.Constraint("DistanceX", 0, 3, 1, 3, 120.0),
    Sketcher.Constraint("DistanceX", 0, 3, -1, 1, 16.476301),
    Sketcher.Constraint("DistanceY", 0, 3, -1, 1, 6.755674),
])
pocket11 = doc.addObject("PartDesign::Pocket", "Pocket010")
body.addObject(pocket11)
pocket11.Profile = sketch13
pocket11.Length = 20
pocket11.Reversed = True

doc.recompute()
